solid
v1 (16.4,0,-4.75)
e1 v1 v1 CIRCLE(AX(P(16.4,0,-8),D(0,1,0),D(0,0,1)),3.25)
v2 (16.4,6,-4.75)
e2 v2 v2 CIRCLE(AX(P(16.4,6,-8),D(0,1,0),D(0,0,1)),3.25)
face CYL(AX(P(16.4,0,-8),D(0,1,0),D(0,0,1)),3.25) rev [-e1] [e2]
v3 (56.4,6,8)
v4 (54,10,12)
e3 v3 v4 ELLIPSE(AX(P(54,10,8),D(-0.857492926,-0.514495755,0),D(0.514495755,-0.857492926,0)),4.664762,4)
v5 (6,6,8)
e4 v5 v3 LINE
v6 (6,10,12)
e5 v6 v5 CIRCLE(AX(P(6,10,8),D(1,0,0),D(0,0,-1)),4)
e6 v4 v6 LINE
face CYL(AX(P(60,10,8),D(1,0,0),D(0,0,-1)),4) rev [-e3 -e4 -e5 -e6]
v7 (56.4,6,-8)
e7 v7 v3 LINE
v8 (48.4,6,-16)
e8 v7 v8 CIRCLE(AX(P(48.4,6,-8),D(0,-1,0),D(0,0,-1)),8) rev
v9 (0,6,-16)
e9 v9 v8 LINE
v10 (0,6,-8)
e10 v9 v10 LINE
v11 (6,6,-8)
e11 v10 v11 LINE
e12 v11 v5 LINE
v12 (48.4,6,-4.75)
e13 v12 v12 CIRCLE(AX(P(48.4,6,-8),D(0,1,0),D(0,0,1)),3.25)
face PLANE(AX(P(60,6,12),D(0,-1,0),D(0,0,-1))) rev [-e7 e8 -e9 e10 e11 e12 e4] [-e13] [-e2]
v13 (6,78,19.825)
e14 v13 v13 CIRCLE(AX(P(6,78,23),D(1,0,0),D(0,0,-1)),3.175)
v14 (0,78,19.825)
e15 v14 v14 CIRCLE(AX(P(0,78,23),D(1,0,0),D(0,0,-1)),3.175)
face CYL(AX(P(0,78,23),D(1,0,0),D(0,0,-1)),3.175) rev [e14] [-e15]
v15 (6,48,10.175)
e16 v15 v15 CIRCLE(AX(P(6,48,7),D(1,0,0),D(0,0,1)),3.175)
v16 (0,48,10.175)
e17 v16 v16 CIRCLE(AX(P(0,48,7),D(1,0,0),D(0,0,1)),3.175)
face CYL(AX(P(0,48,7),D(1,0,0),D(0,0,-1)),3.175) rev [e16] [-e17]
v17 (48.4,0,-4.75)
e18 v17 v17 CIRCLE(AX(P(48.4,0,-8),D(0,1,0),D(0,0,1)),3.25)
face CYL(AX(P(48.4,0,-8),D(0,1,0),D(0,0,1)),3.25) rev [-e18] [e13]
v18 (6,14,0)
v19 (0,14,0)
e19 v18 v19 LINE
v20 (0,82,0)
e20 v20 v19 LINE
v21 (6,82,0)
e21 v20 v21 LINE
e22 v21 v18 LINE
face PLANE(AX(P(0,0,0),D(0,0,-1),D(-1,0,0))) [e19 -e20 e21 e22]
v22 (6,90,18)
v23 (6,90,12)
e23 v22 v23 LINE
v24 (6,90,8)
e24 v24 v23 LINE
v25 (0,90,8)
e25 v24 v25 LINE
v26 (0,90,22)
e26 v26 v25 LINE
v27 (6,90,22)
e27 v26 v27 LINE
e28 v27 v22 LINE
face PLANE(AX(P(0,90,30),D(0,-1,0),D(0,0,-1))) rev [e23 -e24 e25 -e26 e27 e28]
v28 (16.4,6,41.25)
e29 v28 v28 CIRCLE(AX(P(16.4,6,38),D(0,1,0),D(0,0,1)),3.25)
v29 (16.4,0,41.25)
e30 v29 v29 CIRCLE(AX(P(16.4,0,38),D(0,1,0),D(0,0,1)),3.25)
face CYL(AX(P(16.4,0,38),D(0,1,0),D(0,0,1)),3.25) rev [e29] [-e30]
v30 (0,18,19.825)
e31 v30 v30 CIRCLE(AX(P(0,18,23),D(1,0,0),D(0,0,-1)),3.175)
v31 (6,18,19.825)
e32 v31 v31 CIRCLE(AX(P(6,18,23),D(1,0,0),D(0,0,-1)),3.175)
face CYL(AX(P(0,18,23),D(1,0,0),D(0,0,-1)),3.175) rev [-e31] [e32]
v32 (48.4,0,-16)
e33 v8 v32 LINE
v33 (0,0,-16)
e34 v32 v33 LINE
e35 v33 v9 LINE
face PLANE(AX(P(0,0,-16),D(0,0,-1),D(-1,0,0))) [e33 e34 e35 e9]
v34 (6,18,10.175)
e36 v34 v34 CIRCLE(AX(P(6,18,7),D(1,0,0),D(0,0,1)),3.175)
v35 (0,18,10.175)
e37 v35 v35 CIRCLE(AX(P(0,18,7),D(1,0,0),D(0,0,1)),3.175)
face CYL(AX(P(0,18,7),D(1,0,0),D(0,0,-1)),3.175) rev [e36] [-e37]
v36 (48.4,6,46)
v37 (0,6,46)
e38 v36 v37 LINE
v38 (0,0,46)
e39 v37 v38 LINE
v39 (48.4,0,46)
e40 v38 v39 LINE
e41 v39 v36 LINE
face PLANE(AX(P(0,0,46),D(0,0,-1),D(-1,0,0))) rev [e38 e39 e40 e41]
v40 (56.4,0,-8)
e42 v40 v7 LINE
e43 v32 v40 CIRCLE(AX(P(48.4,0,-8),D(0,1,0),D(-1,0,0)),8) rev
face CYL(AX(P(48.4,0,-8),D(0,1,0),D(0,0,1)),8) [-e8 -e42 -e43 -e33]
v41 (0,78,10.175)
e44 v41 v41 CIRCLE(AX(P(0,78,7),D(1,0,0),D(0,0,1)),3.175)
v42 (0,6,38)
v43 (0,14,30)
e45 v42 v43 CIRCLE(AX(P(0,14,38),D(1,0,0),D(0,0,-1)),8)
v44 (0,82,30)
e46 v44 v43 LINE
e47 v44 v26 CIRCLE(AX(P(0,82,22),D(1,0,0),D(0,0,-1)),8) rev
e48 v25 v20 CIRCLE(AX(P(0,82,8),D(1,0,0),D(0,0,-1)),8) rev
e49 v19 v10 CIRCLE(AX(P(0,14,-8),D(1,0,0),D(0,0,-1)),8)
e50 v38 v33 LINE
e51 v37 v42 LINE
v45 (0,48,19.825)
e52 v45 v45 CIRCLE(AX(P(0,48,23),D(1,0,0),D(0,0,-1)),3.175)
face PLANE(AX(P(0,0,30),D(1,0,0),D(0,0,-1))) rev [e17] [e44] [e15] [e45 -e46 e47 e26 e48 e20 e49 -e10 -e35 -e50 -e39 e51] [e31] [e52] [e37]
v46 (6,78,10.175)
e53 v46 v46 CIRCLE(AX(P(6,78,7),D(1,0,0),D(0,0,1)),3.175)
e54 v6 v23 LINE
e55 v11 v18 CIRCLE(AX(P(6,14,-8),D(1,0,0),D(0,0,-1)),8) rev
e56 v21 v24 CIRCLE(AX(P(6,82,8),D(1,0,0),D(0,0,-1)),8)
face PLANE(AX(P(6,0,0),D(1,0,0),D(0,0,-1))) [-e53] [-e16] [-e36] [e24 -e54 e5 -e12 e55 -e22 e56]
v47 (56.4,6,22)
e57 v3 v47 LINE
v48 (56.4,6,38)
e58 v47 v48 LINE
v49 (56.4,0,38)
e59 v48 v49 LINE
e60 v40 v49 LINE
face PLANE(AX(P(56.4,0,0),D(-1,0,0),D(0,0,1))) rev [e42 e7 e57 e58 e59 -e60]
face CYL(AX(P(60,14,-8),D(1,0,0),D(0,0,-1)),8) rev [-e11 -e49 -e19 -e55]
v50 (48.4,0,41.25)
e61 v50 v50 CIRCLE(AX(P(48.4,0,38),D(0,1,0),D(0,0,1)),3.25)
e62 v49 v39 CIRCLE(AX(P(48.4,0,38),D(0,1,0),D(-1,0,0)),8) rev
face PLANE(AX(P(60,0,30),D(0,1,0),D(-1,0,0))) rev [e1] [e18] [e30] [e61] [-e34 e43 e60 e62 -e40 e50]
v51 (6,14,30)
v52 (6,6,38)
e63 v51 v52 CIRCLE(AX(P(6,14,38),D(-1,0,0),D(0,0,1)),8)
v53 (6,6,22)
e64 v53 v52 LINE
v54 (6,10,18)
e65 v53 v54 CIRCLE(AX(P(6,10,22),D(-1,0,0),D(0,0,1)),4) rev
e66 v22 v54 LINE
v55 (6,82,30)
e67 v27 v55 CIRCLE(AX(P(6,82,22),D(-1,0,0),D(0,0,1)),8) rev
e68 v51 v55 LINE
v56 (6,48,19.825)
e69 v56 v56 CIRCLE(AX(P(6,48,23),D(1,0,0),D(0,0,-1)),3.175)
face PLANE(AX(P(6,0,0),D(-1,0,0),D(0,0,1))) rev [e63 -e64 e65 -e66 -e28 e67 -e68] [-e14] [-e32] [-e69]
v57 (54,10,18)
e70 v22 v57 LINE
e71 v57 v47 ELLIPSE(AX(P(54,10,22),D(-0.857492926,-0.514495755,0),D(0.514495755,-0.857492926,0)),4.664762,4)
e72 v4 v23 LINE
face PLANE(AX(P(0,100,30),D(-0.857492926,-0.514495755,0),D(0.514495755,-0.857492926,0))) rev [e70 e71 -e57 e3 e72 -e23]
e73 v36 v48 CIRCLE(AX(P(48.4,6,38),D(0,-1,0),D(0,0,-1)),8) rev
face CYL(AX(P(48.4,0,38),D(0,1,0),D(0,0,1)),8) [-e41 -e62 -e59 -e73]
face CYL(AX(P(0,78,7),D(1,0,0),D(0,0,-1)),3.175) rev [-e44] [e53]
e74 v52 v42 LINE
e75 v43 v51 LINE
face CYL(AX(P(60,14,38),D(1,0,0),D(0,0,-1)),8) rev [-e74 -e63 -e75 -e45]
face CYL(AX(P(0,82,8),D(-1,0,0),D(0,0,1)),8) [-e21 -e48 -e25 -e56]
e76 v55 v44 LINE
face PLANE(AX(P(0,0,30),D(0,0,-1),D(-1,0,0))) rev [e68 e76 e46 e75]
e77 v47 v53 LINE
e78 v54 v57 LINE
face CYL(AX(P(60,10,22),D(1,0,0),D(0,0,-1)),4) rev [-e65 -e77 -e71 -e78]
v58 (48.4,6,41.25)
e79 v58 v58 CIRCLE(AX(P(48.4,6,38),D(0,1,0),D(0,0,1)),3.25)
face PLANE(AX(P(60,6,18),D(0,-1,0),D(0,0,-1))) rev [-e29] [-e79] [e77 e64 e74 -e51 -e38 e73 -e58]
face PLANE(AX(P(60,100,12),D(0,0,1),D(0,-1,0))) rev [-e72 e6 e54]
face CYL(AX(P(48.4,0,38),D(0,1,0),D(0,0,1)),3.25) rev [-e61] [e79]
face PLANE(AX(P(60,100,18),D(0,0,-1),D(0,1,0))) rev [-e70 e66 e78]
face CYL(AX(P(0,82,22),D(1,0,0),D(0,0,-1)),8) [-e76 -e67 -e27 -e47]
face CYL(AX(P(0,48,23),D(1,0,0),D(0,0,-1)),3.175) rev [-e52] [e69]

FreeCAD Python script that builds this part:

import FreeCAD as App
import Part
import Sketcher

V = App.Vector
Q = App.Units.Quantity


def edges_at(feature, points):
    """Names of the edges that pass closest to the given points."""
    edges = feature.Shape.Edges
    near = lambda p: min(range(len(edges)), key=lambda i: edges[i].distToShape(Part.Vertex(*p))[0])
    return sorted({f"Edge{near(p) + 1}" for p in points})


def add_polygon(sketch, points):
    """Adds a closed chain of lines whose ends are joined by coincident constraints."""
    first, n = sketch.GeometryCount, len(points)
    for a, b in zip(points, points[1:] + points[:1]):
        sketch.addGeometry(Part.LineSegment(App.Vector(*a, 0), App.Vector(*b, 0)), False)
    for i in range(n):
        sketch.addConstraint(Sketcher.Constraint("Coincident", first + i, 2, first + (i + 1) % n, 1))

doc = App.newDocument("Part")
body = doc.addObject("PartDesign::Body", "Body")

sketch1 = body.newObject("Sketcher::SketchObject", "Sketch")
sketch1.AttachmentSupport = (doc.getObject("XY_Plane"), [""])
sketch1.MapMode = "FlatFace"
add_polygon(sketch1, [(0, 100), (0, 0), (60, 0)])
sketch1.addConstraint(Sketcher.Constraint("Vertical", 0))
sketch1.addConstraint(Sketcher.Constraint("Horizontal", 1))
sketch1.addConstraint(Sketcher.Constraint("Coincident", 0, 2, -1, 1))
sketch1.addConstraint(Sketcher.Constraint("DistanceX", 1, 1, 1, 2, Q("60 mm")))
sketch1.addConstraint(Sketcher.Constraint("DistanceY", 0, 2, 0, 1, Q("100 mm")))
pad1 = body.newObject("PartDesign::Pad", "Pad")
pad1.Profile = sketch1
pad1.Length = 30

sketch2 = body.newObject("Sketcher::SketchObject", "Sketch001")
sketch2.AttachmentSupport = (doc.getObject("YZ_Plane"), [""])
sketch2.MapMode = "FlatFace"
sketch2.AttachmentOffset = App.Placement(V(0, 0, 6), App.Rotation())
add_polygon(sketch2, [(100, 18), (6, 18), (6, 30), (100, 30)])
add_polygon(sketch2, [(100, 0), (6, 0), (6, 12), (100, 12)])
sketch2.addConstraint(Sketcher.Constraint("Horizontal", 0))
sketch2.addConstraint(Sketcher.Constraint("Vertical", 1))
sketch2.addConstraint(Sketcher.Constraint("Horizontal", 2))
sketch2.addConstraint(Sketcher.Constraint("Vertical", 3))
sketch2.addConstraint(Sketcher.Constraint("Horizontal", 4))
sketch2.addConstraint(Sketcher.Constraint("Vertical", 5))
sketch2.addConstraint(Sketcher.Constraint("Horizontal", 6))
sketch2.addConstraint(Sketcher.Constraint("Vertical", 7))
sketch2.addConstraint(Sketcher.Constraint("PointOnObject", 4, 2, -1))
sketch2.addConstraint(Sketcher.Constraint("Vertical", 1, 2, 4, 2))
sketch2.addConstraint(Sketcher.Constraint("Vertical", 3, 2, 6, 2))
sketch2.addConstraint(Sketcher.Constraint("Equal", 3, 5))
sketch2.addConstraint(Sketcher.Constraint("DistanceX", 0, 2, 0, 1, Q("94 mm")))
sketch2.addConstraint(Sketcher.Constraint("DistanceY", 1, 1, 1, 2, Q("12 mm")))
sketch2.addConstraint(Sketcher.Constraint("DistanceX", -1, 1, 0, 2, Q("6 mm")))
sketch2.addConstraint(Sketcher.Constraint("DistanceY", -1, 1, 0, 2, Q("18 mm")))
pocket1 = body.newObject("PartDesign::Pocket", "Pocket")
pocket1.Profile = sketch2
pocket1.Type = "ThroughAll"
pocket1.Reversed = True

sketch3 = body.newObject("Sketcher::SketchObject", "Sketch002")
sketch3.AttachmentSupport = (doc.getObject("YZ_Plane"), [""])
sketch3.MapMode = "FlatFace"
sketch3.AttachmentOffset = App.Placement(V(0, 0, 6), App.Rotation())
add_polygon(sketch3, [(100, 30), (90, 30), (90, 0), (100, 0)])
sketch3.addConstraint(Sketcher.Constraint("Horizontal", 0))
sketch3.addConstraint(Sketcher.Constraint("Vertical", 1))
sketch3.addConstraint(Sketcher.Constraint("Horizontal", 2))
sketch3.addConstraint(Sketcher.Constraint("Vertical", 3))
sketch3.addConstraint(Sketcher.Constraint("PointOnObject", 1, 2, -1))
sketch3.addConstraint(Sketcher.Constraint("DistanceX", 0, 2, 0, 1, Q("10 mm")))
sketch3.addConstraint(Sketcher.Constraint("DistanceY", 1, 2, 1, 1, Q("30 mm")))
sketch3.addConstraint(Sketcher.Constraint("DistanceX", -1, 1, 0, 2, Q("90 mm")))
pocket2 = body.newObject("PartDesign::Pocket", "Pocket001")
pocket2.Profile = sketch3
pocket2.Type = "ThroughAll"

sketch4 = body.newObject("Sketcher::SketchObject", "Sketch003")
sketch4.AttachmentSupport = (doc.getObject("XZ_Plane"), [""])
sketch4.MapMode = "FlatFace"
sketch4.AttachmentOffset = App.Placement(V(0, 0, -6), App.Rotation())
add_polygon(sketch4, [(56.4, 0), (56.4, 30), (60, 30), (60, 0)])
sketch4.addConstraint(Sketcher.Constraint("Vertical", 0))
sketch4.addConstraint(Sketcher.Constraint("Horizontal", 1))
sketch4.addConstraint(Sketcher.Constraint("Vertical", 2))
sketch4.addConstraint(Sketcher.Constraint("Horizontal", 3))
sketch4.addConstraint(Sketcher.Constraint("PointOnObject", 2, 2, -1))
sketch4.addConstraint(Sketcher.Constraint("DistanceY", 0, 1, 0, 2, Q("30 mm")))
sketch4.addConstraint(Sketcher.Constraint("DistanceX", 1, 1, 1, 2, Q("3.6 mm")))
sketch4.addConstraint(Sketcher.Constraint("DistanceX", -1, 1, 1, 2, Q("60 mm")))
pocket3 = body.newObject("PartDesign::Pocket", "Pocket002")
pocket3.Profile = sketch4
pocket3.Type = "ThroughAll"
pocket3.Reversed = True

sketch5 = body.newObject("Sketcher::SketchObject", "Sketch004")
sketch5.AttachmentSupport = (doc.getObject("XY_Plane"), [""])
sketch5.MapMode = "FlatFace"
sketch5.AttachmentOffset = App.Placement(V(0, 0, 30), App.Rotation())
add_polygon(sketch5, [(0, 6), (0, 0), (56, 0), (56, 6)])
sketch5.addConstraint(Sketcher.Constraint("Vertical", 0))
sketch5.addConstraint(Sketcher.Constraint("Horizontal", 1))
sketch5.addConstraint(Sketcher.Constraint("Vertical", 2))
sketch5.addConstraint(Sketcher.Constraint("Horizontal", 3))
sketch5.addConstraint(Sketcher.Constraint("Coincident", 0, 2, -1, 1))
sketch5.addConstraint(Sketcher.Constraint("DistanceY", 0, 2, 0, 1, Q("6 mm")))
sketch5.addConstraint(Sketcher.Constraint("DistanceX", 1, 1, 1, 2, Q("56.4 mm")))
pad2 = body.newObject("PartDesign::Pad", "Pad001")
pad2.Profile = sketch5
pad2.Length = 16

sketch6 = body.newObject("Sketcher::SketchObject", "Sketch005")
sketch6.AttachmentSupport = (doc.getObject("XY_Plane"), [""])
sketch6.MapMode = "FlatFace"
add_polygon(sketch6, [(56, 6), (56, 0), (0, 0), (0, 6)])
sketch6.addConstraint(Sketcher.Constraint("Vertical", 0))
sketch6.addConstraint(Sketcher.Constraint("Horizontal", 1))
sketch6.addConstraint(Sketcher.Constraint("Vertical", 2))
sketch6.addConstraint(Sketcher.Constraint("Horizontal", 3))
sketch6.addConstraint(Sketcher.Constraint("Coincident", 1, 2, -1, 1))
sketch6.addConstraint(Sketcher.Constraint("DistanceY", 0, 2, 0, 1, Q("6 mm")))
sketch6.addConstraint(Sketcher.Constraint("DistanceX", 1, 2, 1, 1, Q("56.4 mm")))
pad3 = body.newObject("PartDesign::Pad", "Pad002")
pad3.Profile = sketch6
pad3.Length = 16
pad3.Reversed = True
doc.recompute()

fillet = body.newObject("PartDesign::Fillet", "Fillet")
fillet.Base = (pad3, edges_at(pad3, [(3, 6, 0), (3, 6, 30)]))
fillet.Radius = 8
doc.recompute()

fillet2 = body.newObject("PartDesign::Fillet", "Fillet001")
fillet2.Base = (fillet, edges_at(fillet, [(56.4, 3, -16), (56.4, 3, 46)]))
fillet2.Radius = 8
doc.recompute()

fillet3 = body.newObject("PartDesign::Fillet", "Fillet002")
fillet3.Base = (fillet2, edges_at(fillet2, [(3, 90, 30), (3, 90, 0)]))
fillet3.Radius = 8
doc.recompute()

fillet4 = body.newObject("PartDesign::Fillet", "Fillet003")
fillet4.Base = (fillet3, edges_at(fillet3, [(31.2, 6, 18), (31.2, 6, 12)]))
fillet4.Radius = 4

sketch7 = body.newObject("Sketcher::SketchObject", "Sketch006")
sketch7.AttachmentSupport = (doc.getObject("YZ_Plane"), [""])
sketch7.MapMode = "FlatFace"
sketch7.AttachmentOffset = App.Placement(V(0, 0, 6), App.Rotation())
sketch7.addGeometry(Part.Circle(V(78, 23, 0), V(0, 0, 1), 3.2), False)
sketch7.addGeometry(Part.Circle(V(48, 23, 0), V(0, 0, 1), 3.2), False)
sketch7.addGeometry(Part.Circle(V(18, 23, 0), V(0, 0, 1), 3.2), False)
sketch7.addGeometry(Part.Circle(V(18, 7, 0), V(0, 0, 1), 3.2), False)
sketch7.addGeometry(Part.Circle(V(48, 7, 0), V(0, 0, 1), 3.2), False)
sketch7.addGeometry(Part.Circle(V(78, 7, 0), V(0, 0, 1), 3.2), False)
sketch7.addConstraint(Sketcher.Constraint("Equal", 0, 1))
sketch7.addConstraint(Sketcher.Constraint("Equal", 1, 2))
sketch7.addConstraint(Sketcher.Constraint("Equal", 2, 3))
sketch7.addConstraint(Sketcher.Constraint("Equal", 3, 4))
sketch7.addConstraint(Sketcher.Constraint("Equal", 4, 5))
sketch7.addConstraint(Sketcher.Constraint("Horizontal", 0, 3, 1, 3))
sketch7.addConstraint(Sketcher.Constraint("Horizontal", 1, 3, 2, 3))
sketch7.addConstraint(Sketcher.Constraint("Horizontal", 3, 3, 4, 3))
sketch7.addConstraint(Sketcher.Constraint("Horizontal", 4, 3, 5, 3))
sketch7.addConstraint(Sketcher.Constraint("Vertical", 2, 3, 3, 3))
sketch7.addConstraint(Sketcher.Constraint("Vertical", 1, 3, 4, 3))
sketch7.addConstraint(Sketcher.Constraint("Vertical", 0, 3, 5, 3))
sketch7.addConstraint(Sketcher.Constraint("Diameter", 0, Q("6.35 mm")))
sketch7.addConstraint(Sketcher.Constraint("DistanceX", -1, 1, 0, 3, Q("78 mm")))
sketch7.addConstraint(Sketcher.Constraint("DistanceY", -1, 1, 0, 3, Q("23 mm")))
sketch7.addConstraint(Sketcher.Constraint("DistanceX", -1, 1, 1, 3, Q("48 mm")))
sketch7.addConstraint(Sketcher.Constraint("DistanceX", -1, 1, 2, 3, Q("18 mm")))
sketch7.addConstraint(Sketcher.Constraint("DistanceY", -1, 1, 3, 3, Q("7 mm")))
pocket4 = body.newObject("PartDesign::Pocket", "Pocket003")
pocket4.Profile = sketch7
pocket4.Type = "ThroughAll"

sketch8 = body.newObject("Sketcher::SketchObject", "Sketch007")
sketch8.AttachmentSupport = (doc.getObject("XZ_Plane"), [""])
sketch8.MapMode = "FlatFace"
sketch8.AttachmentOffset = App.Placement(V(0, 0, -6), App.Rotation())
sketch8.addGeometry(Part.Circle(V(48.4, -8, 0), V(0, 0, 1), 3.2), False)
sketch8.addGeometry(Part.Circle(V(48.4, 38, 0), V(0, 0, 1), 3.2), False)
sketch8.addGeometry(Part.Circle(V(16.4, 38, 0), V(0, 0, 1), 3.2), False)
sketch8.addGeometry(Part.Circle(V(16.4, -8, 0), V(0, 0, 1), 3.2), False)
sketch8.addConstraint(Sketcher.Constraint("Equal", 0, 1))
sketch8.addConstraint(Sketcher.Constraint("Equal", 1, 2))
sketch8.addConstraint(Sketcher.Constraint("Equal", 2, 3))
sketch8.addConstraint(Sketcher.Constraint("Horizontal", 1, 3, 2, 3))
sketch8.addConstraint(Sketcher.Constraint("Horizontal", 0, 3, 3, 3))
sketch8.addConstraint(Sketcher.Constraint("Vertical", 0, 3, 1, 3))
sketch8.addConstraint(Sketcher.Constraint("Vertical", 2, 3, 3, 3))
sketch8.addConstraint(Sketcher.Constraint("Diameter", 0, Q("6.5 mm")))
sketch8.addConstraint(Sketcher.Constraint("DistanceY", 0, 3, -1, 1, Q("8 mm")))
sketch8.addConstraint(Sketcher.Constraint("DistanceY", -1, 1, 1, 3, Q("38 mm")))
sketch8.addConstraint(Sketcher.Constraint("DistanceX", 2, 3, 1, 3, Q("32 mm")))
sketch8.addConstraint(Sketcher.Constraint("DistanceX", -1, 1, 0, 3, Q("48.4 mm")))
pocket5 = body.newObject("PartDesign::Pocket", "Pocket004")
pocket5.Profile = sketch8
pocket5.Type = "ThroughAll"
pocket5.Reversed = True

doc.recompute()
